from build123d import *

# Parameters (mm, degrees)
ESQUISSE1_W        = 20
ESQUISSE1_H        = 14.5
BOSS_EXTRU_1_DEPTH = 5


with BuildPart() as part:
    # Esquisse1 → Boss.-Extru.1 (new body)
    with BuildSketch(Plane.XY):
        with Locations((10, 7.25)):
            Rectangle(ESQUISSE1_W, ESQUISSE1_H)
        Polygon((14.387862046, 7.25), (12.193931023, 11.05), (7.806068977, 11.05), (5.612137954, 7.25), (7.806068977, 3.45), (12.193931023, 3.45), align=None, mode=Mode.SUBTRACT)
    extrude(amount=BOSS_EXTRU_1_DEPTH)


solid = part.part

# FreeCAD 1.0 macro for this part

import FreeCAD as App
import Part
import Sketcher
Q = App.Units.Quantity


def add_polygon(sketch, points):
    """Adds a closed chain of lines whose ends are joined by coincident constraints."""
    first, n = sketch.GeometryCount, len(points)
    for a, b in zip(points, points[1:] + points[:1]):
        sketch.addGeometry(Part.LineSegment(App.Vector(*a, 0), App.Vector(*b, 0)), False)
    for i in range(n):
        sketch.addConstraint(Sketcher.Constraint("Coincident", first + i, 2, first + (i + 1) % n, 1))

doc = App.newDocument("Part")
body = doc.addObject("PartDesign::Body", "Body")

sketch1 = body.newObject("Sketcher::SketchObject", "Sketch")
sketch1.AttachmentSupport = (doc.getObject("XY_Plane"), [""])
sketch1.MapMode = "FlatFace"
add_polygon(sketch1, [(0, 14.5), (0, 0), (20, 0), (20, 14.5)])
add_polygon(sketch1, [(12.2, 11.1), (14.4, 7.2), (12.2, 3.5), (7.8, 3.5), (5.6, 7.2), (7.8, 11.1)])
sketch1.addConstraint([
    Sketcher.Constraint("Vertical", 0),
    Sketcher.Constraint("Horizontal", 1),
    Sketcher.Constraint("Vertical", 2),
    Sketcher.Constraint("Horizontal", 3),
    Sketcher.Constraint("Horizontal", 6),
    Sketcher.Constraint("Horizontal", 9),
    Sketcher.Constraint("Coincident", 0, 2, -1, 1),
    Sketcher.Constraint("Parallel", 4, 7),
    Sketcher.Constraint("Parallel", 5, 8),
    Sketcher.Constraint("Horizontal", 4, 2, 7, 2),
    Sketcher.Constraint("Vertical", 6, 2, 8, 2),
    Sketcher.Constraint("Vertical", 5, 2, 9, 2),
    Sketcher.Constraint("DistanceX", 1, 1, 1, 2, 20.0),
    Sketcher.Constraint("Angle", 4, Q("-60 deg")),
    Sketcher.Constraint("DistanceY", 0, 2, 0, 1, 14.5),
    Sketcher.Constraint("DistanceY", 5, 2, 4, 2, 3.8),
    Sketcher.Constraint("DistanceY", -1, 1, 4, 2, 7.25),
    Sketcher.Constraint("DistanceX", 6, 2, 6, 1, 4.387862),
    Sketcher.Constraint("DistanceX", -1, 1, 5, 2, 12.193931),
])
pad1 = body.newObject("PartDesign::Pad", "Pad")
pad1.Profile = sketch1
pad1.Length = 5

doc.recompute()
